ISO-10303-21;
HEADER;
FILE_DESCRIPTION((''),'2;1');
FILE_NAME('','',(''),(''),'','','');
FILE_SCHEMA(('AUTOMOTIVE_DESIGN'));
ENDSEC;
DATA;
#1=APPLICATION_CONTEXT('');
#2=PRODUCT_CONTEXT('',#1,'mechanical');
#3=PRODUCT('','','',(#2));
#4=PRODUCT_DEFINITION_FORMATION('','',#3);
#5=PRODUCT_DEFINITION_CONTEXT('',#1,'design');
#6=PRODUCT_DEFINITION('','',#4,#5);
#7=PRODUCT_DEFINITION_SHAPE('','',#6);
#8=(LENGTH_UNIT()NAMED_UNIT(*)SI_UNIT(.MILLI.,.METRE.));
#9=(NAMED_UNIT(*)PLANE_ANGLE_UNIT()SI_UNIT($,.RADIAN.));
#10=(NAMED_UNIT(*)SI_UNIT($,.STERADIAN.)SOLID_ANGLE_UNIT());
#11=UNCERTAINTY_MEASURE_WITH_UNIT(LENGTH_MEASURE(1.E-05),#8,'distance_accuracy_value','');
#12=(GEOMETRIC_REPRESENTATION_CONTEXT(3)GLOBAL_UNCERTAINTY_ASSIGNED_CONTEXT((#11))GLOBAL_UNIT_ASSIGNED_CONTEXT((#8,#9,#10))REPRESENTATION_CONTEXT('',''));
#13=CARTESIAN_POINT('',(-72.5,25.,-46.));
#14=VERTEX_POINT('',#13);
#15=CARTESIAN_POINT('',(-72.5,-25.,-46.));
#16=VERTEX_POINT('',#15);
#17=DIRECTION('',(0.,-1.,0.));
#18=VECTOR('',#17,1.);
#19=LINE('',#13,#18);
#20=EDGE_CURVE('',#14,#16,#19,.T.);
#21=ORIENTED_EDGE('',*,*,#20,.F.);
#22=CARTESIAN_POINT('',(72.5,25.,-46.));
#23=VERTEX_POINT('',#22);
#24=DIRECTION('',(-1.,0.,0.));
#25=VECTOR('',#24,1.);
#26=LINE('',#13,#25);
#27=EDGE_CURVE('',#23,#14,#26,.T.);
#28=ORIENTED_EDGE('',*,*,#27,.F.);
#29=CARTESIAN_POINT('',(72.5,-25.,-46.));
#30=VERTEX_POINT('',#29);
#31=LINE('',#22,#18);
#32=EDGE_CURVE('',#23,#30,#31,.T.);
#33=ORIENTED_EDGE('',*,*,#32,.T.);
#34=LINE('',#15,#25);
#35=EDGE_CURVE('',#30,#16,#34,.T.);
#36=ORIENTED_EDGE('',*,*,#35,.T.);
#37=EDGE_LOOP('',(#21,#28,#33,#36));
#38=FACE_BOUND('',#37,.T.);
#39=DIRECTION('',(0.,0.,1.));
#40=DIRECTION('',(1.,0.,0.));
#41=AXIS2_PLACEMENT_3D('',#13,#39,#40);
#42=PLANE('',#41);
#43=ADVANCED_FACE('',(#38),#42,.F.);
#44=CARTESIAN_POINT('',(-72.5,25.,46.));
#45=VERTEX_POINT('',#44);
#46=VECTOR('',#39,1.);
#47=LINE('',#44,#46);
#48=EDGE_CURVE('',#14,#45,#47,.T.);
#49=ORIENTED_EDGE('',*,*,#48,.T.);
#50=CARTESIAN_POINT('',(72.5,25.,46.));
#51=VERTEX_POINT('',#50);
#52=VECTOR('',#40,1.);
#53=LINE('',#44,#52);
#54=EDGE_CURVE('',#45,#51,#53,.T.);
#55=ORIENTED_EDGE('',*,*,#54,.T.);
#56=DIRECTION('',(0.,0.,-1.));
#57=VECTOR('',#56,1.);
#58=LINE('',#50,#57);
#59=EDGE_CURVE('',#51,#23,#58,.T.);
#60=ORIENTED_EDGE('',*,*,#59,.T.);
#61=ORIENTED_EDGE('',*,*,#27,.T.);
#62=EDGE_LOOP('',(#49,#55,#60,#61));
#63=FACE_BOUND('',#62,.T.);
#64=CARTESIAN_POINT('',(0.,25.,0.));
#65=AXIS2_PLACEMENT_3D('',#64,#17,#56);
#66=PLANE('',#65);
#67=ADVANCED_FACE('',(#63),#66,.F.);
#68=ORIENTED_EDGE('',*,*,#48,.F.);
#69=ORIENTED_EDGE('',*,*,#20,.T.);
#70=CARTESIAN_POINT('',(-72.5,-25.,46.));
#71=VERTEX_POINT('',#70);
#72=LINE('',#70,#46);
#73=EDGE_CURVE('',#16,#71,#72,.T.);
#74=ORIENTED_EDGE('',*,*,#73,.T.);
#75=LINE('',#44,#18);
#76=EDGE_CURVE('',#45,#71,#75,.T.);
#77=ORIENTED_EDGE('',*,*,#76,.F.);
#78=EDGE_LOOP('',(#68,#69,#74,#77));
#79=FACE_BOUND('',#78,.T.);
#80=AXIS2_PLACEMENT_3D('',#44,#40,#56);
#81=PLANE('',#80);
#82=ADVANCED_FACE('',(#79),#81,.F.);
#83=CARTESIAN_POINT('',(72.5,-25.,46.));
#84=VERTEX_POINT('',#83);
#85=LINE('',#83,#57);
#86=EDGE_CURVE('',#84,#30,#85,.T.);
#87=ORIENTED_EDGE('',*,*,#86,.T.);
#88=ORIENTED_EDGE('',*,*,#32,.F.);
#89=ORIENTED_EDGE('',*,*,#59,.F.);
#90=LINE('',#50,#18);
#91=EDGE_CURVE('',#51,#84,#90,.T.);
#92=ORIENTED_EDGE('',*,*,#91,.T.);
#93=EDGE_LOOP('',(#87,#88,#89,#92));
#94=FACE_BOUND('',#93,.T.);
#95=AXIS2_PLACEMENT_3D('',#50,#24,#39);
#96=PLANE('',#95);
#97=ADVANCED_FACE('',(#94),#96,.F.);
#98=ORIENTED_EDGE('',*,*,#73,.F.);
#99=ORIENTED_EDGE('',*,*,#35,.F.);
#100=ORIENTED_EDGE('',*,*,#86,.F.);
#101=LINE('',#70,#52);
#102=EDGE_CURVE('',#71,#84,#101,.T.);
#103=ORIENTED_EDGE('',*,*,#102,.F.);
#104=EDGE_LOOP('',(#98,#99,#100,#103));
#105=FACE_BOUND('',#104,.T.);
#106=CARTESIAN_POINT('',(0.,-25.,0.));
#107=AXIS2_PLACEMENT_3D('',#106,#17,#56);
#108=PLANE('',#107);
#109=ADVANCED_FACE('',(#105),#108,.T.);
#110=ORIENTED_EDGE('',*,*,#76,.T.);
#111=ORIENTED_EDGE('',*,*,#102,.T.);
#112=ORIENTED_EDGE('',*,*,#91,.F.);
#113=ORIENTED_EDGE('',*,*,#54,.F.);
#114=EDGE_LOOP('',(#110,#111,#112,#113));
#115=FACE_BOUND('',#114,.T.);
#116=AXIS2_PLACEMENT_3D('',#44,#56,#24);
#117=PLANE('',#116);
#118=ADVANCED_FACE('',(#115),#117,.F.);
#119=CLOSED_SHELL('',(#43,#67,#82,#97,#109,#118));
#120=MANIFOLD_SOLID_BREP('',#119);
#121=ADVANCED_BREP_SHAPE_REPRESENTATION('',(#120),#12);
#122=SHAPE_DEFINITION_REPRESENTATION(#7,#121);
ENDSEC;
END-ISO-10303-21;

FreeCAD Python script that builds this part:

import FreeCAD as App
import Part
import Sketcher
Q = App.Units.Quantity

doc = App.newDocument("Part")
body = doc.addObject("PartDesign::Body", "Body")

# Sketch on XZ plane
sketch1 = body.newObject("Sketcher::SketchObject", "Sketch")
sketch1.AttachmentSupport = (doc.getObject("XZ_Plane"), [""])
sketch1.MapMode = "FlatFace"
sketch1.addGeometry([
    Part.LineSegment(App.Vector(-72, -46, 0), App.Vector(-72, 46, 0)),
    Part.LineSegment(App.Vector(-72, 46, 0), App.Vector(72, 46, 0)),
    Part.LineSegment(App.Vector(72, 46, 0), App.Vector(72, -46, 0)),
    Part.LineSegment(App.Vector(72, -46, 0), App.Vector(-72, -46, 0)),
], False)
sketch1.addConstraint([
    Sketcher.Constraint("Coincident", 0, 2, 1, 1),
    Sketcher.Constraint("Coincident", 1, 2, 2, 1),
    Sketcher.Constraint("Coincident", 2, 2, 3, 1),
    Sketcher.Constraint("Coincident", 3, 2, 0, 1),
    Sketcher.Constraint("Vertical", 0),
    Sketcher.Constraint("Horizontal", 1),
    Sketcher.Constraint("Vertical", 2),
    Sketcher.Constraint("Horizontal", 3),
    Sketcher.Constraint("Symmetric", 0, 2, 2, 2, -1, 1),
    Sketcher.Constraint("DistanceX", 1, 1, 1, 2, Q("145 mm")),
    Sketcher.Constraint("DistanceY", 0, 1, 0, 2, Q("92 mm")),
])
pad1 = body.newObject("PartDesign::Pad", "Pad")
pad1.Profile = sketch1
pad1.Length = 50
pad1.Midplane = True

doc.recompute()
